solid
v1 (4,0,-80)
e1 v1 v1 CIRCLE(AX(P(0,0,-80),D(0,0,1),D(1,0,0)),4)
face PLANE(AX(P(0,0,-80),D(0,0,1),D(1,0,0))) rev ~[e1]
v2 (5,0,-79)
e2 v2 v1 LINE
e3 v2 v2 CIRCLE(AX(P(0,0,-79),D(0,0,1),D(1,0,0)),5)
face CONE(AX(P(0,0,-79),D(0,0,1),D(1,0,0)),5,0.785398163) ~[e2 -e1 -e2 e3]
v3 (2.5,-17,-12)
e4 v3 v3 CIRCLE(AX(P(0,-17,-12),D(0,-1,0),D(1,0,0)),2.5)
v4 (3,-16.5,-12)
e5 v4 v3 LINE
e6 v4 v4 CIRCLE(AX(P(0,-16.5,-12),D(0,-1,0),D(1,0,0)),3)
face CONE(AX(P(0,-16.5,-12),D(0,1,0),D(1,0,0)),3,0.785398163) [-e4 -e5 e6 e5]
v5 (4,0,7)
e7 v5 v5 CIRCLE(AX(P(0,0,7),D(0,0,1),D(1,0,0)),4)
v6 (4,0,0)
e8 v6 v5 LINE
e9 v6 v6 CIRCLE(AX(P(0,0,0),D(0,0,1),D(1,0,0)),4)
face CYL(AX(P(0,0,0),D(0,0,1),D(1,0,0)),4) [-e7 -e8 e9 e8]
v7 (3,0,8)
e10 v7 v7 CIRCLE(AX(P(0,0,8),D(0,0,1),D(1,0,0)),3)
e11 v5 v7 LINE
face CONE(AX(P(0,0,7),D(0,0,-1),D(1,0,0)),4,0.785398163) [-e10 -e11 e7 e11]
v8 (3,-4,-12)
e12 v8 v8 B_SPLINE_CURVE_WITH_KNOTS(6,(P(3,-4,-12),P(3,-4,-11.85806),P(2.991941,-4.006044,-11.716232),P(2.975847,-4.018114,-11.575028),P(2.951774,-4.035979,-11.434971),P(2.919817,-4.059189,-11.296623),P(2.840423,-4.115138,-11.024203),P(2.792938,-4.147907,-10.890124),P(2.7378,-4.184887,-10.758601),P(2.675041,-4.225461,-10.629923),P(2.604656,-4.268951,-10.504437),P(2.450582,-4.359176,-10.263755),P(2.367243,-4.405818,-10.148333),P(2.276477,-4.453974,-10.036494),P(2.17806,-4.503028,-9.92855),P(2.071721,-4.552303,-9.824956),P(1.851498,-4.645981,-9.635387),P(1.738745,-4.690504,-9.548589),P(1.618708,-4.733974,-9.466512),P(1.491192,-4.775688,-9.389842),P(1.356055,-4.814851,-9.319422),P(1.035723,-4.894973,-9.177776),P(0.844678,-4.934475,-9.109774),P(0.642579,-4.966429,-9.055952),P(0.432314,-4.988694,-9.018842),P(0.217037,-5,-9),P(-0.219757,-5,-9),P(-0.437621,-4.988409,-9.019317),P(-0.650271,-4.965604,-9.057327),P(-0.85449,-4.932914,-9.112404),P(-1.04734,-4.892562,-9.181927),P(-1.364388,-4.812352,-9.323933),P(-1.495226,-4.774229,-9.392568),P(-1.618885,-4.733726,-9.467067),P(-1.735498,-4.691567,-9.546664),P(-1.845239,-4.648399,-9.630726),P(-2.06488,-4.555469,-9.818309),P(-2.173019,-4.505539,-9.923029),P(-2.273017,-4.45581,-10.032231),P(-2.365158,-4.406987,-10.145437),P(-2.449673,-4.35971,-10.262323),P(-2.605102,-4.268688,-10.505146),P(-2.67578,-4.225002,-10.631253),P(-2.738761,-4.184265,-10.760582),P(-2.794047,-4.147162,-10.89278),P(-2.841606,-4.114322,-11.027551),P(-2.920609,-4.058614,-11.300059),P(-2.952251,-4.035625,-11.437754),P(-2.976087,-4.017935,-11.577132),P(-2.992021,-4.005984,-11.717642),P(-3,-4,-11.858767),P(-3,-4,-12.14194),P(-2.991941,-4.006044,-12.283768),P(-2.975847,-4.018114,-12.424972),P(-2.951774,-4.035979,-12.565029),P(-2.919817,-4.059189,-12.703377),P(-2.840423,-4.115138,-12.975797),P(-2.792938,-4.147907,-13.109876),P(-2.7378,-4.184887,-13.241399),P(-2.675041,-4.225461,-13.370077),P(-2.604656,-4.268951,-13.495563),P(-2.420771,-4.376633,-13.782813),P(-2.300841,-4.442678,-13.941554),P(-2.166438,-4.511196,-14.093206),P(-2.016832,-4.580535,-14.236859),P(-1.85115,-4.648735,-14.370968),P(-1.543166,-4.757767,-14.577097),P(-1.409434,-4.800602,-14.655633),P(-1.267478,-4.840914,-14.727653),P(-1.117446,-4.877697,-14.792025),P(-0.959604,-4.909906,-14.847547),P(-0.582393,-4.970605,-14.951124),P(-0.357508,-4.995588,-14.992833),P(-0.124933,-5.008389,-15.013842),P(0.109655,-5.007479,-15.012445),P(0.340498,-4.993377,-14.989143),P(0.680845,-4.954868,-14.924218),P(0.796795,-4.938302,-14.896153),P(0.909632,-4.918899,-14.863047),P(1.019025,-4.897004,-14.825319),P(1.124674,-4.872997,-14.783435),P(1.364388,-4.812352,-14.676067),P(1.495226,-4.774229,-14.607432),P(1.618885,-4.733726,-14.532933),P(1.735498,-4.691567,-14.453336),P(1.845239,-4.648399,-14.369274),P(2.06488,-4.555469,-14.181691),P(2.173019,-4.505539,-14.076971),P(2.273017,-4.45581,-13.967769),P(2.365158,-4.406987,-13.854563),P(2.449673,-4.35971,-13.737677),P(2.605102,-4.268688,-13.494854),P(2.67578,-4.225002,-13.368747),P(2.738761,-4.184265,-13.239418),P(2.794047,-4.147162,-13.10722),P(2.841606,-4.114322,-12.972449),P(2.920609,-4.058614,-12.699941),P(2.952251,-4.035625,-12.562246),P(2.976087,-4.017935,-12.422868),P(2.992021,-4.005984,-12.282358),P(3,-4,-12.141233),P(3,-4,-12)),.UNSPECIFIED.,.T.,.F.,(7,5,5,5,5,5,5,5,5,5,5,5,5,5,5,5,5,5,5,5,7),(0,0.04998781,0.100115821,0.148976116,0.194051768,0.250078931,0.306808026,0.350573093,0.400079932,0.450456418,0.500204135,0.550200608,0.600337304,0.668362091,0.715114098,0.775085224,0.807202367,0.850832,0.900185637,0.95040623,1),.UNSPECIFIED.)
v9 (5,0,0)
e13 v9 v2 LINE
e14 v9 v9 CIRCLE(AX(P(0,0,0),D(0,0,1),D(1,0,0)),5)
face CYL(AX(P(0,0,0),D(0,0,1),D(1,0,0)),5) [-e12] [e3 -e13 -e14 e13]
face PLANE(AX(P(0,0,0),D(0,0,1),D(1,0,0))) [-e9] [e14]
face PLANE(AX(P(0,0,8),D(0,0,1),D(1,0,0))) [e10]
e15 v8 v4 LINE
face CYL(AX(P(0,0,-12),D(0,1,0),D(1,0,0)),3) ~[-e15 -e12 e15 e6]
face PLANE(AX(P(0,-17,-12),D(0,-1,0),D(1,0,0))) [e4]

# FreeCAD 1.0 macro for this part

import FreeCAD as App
import Part
import Sketcher

V = App.Vector


def edges_at(feature, points):
    """Names of the edges that pass closest to the given points."""
    edges = feature.Shape.Edges
    near = lambda p: min(range(len(edges)), key=lambda i: edges[i].distToShape(Part.Vertex(*p))[0])
    return sorted({f"Edge{near(p) + 1}" for p in points})

doc = App.newDocument("Part")
body = doc.addObject("PartDesign::Body", "Body")

# Sketch on XY plane
sketch1 = doc.addObject("Sketcher::SketchObject", "Sketch")
body.addObject(sketch1)
sketch1.AttachmentSupport = (doc.XY_Plane, [""])
sketch1.MapMode = "FlatFace"
sketch1.addGeometry(Part.Circle(V(0, 0, 0), V(0, 0, 1), 4), False)
sketch1.addConstraint([
    Sketcher.Constraint("Coincident", 0, 3, -1, 1),
    Sketcher.Constraint("Diameter", 0, 8.0),
])
pad1 = doc.addObject("PartDesign::Pad", "Pad")
body.addObject(pad1)
pad1.Profile = sketch1
pad1.Type = "TwoLengths"
pad1.Length = 8
pad1.Length2 = 80
body2 = doc.addObject("PartDesign::Body", "Body001")

# Sketch on XY plane
sketch2 = doc.addObject("Sketcher::SketchObject", "Sketch001")
body2.addObject(sketch2)
sketch2.AttachmentSupport = (doc.getObject("XY_Plane001"), [""])
sketch2.MapMode = "FlatFace"
sketch2.addGeometry([
    Part.Circle(V(0, 0, 0), V(0, 0, 1), 5),
    Part.Circle(V(0, 0, 0), V(0, 0, 1), 4),
], False)
sketch2.addConstraint([
    Sketcher.Constraint("Coincident", 0, 3, -1, 1),
    Sketcher.Constraint("Coincident", 1, 3, -1, 1),
    Sketcher.Constraint("Diameter", 0, 10.0),
    Sketcher.Constraint("Diameter", 1, 8.0),
])
pad2 = doc.addObject("PartDesign::Pad", "Pad001")
body2.addObject(pad2)
pad2.Profile = sketch2
pad2.Length = 80
pad2.Reversed = True
doc.recompute()

boolean = doc.addObject("PartDesign::Boolean", "Boolean")
body.addObject(boolean)
boolean.Type = "Fuse"
boolean.addObjects([body2])

# Sketch on XZ plane
sketch3 = doc.addObject("Sketcher::SketchObject", "Sketch002")
body.addObject(sketch3)
sketch3.AttachmentSupport = (doc.XZ_Plane, [""])
sketch3.MapMode = "FlatFace"
sketch3.addGeometry(Part.Circle(V(0, -12, 0), V(0, 0, 1), 3), False)
sketch3.addConstraint([
    Sketcher.Constraint("PointOnObject", 0, 3, -2),
    Sketcher.Constraint("Diameter", 0, 6.0),
    Sketcher.Constraint("DistanceY", 0, 3, -1, 1, 12.0),
])
pad3 = doc.addObject("PartDesign::Pad", "Pad002")
body.addObject(pad3)
pad3.Profile = sketch3
pad3.Length = 17
doc.recompute()

chamfer = doc.addObject("PartDesign::Chamfer", "Chamfer")
body.addObject(chamfer)
chamfer.Base = (pad3, edges_at(pad3, [(-5, 0, -80), (-4, 0, 8)]))
chamfer.Size = 1
doc.recompute()

chamfer2 = doc.addObject("PartDesign::Chamfer", "Chamfer001")
body.addObject(chamfer2)
chamfer2.Base = (chamfer, edges_at(chamfer, [(-3, -17, -12)]))
chamfer2.Size = 0.5

doc.recompute()
